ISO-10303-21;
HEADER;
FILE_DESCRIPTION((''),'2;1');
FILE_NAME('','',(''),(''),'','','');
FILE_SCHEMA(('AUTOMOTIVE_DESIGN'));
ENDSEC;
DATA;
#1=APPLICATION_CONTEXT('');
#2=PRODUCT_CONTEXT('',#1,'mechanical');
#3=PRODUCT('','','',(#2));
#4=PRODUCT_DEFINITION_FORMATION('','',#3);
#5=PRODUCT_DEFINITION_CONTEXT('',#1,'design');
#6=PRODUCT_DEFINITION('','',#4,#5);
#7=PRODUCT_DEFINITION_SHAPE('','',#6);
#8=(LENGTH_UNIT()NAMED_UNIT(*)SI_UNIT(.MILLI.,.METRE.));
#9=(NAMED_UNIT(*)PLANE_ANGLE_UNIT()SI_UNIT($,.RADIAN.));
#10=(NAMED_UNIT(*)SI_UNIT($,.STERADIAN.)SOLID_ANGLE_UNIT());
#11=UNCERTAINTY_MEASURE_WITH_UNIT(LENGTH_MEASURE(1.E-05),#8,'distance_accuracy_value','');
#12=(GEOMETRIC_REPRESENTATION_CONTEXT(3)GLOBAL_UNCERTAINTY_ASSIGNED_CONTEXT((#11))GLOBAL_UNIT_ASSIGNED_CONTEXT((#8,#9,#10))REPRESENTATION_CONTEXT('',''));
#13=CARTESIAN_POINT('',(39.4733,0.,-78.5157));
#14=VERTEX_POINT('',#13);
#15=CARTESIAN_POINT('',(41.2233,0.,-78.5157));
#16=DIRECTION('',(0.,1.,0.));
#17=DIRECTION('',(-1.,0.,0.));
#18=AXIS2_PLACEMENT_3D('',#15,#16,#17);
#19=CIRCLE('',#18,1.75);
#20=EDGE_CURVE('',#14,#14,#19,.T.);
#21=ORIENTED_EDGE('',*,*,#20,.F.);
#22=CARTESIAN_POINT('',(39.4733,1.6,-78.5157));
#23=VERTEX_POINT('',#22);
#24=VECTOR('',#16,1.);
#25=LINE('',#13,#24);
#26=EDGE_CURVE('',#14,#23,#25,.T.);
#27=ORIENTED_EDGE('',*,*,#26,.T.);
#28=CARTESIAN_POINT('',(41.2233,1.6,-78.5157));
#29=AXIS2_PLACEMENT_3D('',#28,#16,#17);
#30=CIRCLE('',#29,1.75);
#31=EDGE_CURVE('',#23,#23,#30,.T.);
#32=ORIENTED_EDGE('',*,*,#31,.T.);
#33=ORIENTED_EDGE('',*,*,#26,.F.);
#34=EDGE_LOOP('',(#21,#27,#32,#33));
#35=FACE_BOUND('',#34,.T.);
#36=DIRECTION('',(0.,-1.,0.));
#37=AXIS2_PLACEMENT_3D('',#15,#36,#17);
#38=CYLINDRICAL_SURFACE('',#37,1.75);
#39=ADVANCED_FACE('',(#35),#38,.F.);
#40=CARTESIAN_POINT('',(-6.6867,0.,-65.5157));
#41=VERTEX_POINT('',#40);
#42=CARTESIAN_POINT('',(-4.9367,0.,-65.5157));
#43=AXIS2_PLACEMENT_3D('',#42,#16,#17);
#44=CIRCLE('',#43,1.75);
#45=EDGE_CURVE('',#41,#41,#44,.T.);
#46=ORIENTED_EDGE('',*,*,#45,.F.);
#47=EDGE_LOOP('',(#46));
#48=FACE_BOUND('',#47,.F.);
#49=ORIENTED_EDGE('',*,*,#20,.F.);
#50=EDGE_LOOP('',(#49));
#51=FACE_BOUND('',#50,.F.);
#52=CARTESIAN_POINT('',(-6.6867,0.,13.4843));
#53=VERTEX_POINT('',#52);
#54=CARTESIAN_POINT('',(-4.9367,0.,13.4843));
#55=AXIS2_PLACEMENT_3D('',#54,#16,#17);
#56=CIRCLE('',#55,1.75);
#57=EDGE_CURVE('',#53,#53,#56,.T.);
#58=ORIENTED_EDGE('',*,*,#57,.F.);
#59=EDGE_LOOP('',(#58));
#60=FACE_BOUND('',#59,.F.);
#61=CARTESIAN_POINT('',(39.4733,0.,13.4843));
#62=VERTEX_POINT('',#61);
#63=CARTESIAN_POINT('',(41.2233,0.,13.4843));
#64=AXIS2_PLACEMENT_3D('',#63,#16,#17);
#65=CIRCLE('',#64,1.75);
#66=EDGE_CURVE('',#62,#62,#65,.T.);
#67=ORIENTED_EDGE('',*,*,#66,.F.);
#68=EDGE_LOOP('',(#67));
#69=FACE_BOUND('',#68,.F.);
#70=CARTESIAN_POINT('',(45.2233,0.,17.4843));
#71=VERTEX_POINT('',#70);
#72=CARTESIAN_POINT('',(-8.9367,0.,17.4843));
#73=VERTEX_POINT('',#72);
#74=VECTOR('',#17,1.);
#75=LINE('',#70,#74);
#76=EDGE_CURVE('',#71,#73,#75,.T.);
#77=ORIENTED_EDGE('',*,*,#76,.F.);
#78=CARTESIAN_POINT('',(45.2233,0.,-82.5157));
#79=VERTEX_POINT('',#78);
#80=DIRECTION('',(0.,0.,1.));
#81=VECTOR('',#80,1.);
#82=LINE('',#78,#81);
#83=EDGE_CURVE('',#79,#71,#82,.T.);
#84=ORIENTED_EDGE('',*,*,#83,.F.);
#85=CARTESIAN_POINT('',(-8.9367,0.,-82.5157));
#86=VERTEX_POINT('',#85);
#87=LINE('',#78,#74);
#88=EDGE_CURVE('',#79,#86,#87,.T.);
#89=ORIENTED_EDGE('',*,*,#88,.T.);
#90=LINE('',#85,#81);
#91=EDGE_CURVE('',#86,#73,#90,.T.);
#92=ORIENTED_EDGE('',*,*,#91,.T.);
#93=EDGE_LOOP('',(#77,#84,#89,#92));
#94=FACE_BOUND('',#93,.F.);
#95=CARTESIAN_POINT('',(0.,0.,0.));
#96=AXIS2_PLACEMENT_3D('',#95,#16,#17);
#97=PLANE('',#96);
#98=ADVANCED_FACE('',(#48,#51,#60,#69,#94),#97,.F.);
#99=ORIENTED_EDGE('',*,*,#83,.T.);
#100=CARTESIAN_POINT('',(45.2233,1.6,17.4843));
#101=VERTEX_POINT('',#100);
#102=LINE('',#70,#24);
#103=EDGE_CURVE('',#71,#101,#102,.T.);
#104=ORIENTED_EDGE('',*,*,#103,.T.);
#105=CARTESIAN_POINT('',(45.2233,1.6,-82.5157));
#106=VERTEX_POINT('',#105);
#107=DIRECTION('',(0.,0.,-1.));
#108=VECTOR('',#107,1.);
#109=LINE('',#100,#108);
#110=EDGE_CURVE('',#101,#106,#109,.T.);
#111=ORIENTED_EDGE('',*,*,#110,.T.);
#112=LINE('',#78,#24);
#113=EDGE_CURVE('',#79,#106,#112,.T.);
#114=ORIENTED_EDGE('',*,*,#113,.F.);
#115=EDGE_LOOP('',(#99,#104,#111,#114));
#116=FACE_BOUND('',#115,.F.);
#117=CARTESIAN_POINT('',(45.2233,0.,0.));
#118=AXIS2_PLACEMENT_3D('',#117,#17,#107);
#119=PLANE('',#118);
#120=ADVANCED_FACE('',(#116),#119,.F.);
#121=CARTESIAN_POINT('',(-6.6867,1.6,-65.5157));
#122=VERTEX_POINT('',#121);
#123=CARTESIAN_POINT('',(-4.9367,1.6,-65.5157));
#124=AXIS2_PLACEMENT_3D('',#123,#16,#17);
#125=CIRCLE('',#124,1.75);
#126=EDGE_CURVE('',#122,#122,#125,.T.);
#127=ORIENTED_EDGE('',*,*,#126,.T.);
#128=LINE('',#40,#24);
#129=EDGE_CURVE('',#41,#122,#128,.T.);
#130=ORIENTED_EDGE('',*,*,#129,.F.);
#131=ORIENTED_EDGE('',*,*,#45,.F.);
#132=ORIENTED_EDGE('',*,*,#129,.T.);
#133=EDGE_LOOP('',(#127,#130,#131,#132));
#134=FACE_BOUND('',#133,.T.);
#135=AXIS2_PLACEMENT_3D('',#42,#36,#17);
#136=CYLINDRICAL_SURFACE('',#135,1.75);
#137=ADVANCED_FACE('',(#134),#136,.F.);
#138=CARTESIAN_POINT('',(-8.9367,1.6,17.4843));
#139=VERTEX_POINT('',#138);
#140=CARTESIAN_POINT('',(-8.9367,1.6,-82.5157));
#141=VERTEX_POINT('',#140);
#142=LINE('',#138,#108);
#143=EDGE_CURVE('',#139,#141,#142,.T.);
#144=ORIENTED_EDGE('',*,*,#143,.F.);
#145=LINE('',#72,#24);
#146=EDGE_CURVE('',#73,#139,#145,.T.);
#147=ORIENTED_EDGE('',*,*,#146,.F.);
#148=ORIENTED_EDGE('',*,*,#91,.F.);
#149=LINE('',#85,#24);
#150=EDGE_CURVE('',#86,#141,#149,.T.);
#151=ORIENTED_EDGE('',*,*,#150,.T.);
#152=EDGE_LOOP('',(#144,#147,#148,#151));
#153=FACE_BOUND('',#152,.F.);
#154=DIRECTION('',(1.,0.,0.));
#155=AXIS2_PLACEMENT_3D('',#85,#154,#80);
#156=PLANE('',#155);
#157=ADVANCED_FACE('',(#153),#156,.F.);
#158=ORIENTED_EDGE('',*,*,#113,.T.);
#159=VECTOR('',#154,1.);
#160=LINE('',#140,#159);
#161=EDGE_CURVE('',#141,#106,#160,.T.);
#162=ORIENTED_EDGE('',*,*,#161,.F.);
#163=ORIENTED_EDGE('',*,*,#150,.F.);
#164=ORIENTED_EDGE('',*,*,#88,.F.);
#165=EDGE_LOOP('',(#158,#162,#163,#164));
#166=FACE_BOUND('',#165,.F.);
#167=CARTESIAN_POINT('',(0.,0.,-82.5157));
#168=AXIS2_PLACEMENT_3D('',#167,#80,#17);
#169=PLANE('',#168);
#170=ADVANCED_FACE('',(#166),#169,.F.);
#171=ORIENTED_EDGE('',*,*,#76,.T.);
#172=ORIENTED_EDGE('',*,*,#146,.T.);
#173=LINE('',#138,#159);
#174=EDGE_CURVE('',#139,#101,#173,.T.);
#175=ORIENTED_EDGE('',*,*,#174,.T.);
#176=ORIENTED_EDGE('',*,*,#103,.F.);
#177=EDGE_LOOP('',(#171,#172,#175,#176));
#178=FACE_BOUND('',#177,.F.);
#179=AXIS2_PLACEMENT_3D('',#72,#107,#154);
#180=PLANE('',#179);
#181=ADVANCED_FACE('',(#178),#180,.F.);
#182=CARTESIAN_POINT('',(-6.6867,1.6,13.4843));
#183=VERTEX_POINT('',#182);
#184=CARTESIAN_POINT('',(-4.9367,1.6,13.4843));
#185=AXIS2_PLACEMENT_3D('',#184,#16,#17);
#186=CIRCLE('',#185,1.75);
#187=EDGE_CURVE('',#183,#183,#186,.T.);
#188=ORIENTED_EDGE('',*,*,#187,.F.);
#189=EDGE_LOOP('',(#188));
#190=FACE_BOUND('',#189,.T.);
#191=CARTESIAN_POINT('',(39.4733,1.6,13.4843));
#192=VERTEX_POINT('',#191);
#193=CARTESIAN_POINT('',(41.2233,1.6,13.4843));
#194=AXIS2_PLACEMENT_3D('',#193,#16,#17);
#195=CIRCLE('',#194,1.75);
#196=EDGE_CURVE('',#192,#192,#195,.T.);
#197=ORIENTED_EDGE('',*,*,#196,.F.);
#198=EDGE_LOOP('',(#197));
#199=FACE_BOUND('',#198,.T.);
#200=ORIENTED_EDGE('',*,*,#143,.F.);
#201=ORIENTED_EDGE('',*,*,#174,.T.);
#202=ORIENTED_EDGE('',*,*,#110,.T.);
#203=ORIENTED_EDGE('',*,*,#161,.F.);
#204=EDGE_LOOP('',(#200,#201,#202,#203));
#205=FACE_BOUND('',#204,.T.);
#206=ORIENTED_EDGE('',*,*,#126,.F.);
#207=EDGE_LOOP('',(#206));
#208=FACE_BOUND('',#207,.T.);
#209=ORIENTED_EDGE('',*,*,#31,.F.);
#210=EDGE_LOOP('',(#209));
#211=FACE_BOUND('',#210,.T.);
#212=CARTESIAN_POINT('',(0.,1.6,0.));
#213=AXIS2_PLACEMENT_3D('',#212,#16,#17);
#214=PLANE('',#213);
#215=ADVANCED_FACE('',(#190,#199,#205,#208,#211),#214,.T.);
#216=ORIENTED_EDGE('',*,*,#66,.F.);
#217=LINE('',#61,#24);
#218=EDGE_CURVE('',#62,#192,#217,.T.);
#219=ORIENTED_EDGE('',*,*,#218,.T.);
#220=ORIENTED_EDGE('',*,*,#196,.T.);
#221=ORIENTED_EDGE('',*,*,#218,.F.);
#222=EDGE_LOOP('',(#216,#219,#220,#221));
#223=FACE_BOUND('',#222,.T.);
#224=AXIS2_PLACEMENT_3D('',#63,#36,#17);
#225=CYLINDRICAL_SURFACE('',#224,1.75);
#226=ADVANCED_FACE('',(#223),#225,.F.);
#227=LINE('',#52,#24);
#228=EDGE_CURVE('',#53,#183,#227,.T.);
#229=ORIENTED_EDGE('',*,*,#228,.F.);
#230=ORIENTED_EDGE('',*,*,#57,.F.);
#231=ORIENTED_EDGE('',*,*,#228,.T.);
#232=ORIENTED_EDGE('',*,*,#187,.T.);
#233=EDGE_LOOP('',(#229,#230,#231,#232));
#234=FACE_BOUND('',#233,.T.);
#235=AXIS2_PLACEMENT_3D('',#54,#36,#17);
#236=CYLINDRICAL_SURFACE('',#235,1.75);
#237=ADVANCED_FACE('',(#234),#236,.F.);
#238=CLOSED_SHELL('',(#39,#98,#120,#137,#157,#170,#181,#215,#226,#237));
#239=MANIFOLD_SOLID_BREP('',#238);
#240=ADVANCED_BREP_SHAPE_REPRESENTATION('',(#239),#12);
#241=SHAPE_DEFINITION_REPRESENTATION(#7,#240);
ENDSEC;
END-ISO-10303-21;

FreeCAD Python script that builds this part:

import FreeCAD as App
import Part
import Sketcher

V = App.Vector
Q = App.Units.Quantity


def add_polygon(sketch, points):
    """Adds a closed chain of lines whose ends are joined by coincident constraints."""
    first, n = sketch.GeometryCount, len(points)
    for a, b in zip(points, points[1:] + points[:1]):
        sketch.addGeometry(Part.LineSegment(App.Vector(*a, 0), App.Vector(*b, 0)), False)
    for i in range(n):
        sketch.addConstraint(Sketcher.Constraint("Coincident", first + i, 2, first + (i + 1) % n, 1))

doc = App.newDocument("Part")
params = doc.addObject("Spreadsheet::Sheet", "Params")
for row, (alias, value) in enumerate([
    ("sketch1_height", "3.937 in"),
    ("pad1_length", "0.0629921 in"),
], start=1):
    params.set(f"A{row}", alias)
    params.set(f"B{row}", "=" + value)
    params.setAlias(f"B{row}", alias)

body = doc.addObject("PartDesign::Body", "Body")

# Sketch on XZ plane
sketch1 = body.newObject("Sketcher::SketchObject", "Sketch")
sketch1.AttachmentSupport = (doc.getObject("XZ_Plane"), [""])
sketch1.MapMode = "FlatFace"
add_polygon(sketch1, [(-8.9367, -82.5157), (-8.9367, 17.4843), (45.2233, 17.4843), (45.2233, -82.5157)])  # lines 0-3
sketch1.addGeometry(Part.Circle(V(-4.9367, -65.5157, 0), V(0, 0, 1), 1.75), False)  # 4
sketch1.addGeometry(Part.Circle(V(41.2233, -78.5157, 0), V(0, 0, 1), 1.75), False)  # 5
sketch1.addGeometry(Part.Circle(V(-4.9367, 13.4843, 0), V(0, 0, 1), 1.75), False)  # 6
sketch1.addGeometry(Part.Circle(V(41.2233, 13.4843, 0), V(0, 0, 1), 1.75), False)  # 7
sketch1.addConstraint(Sketcher.Constraint("Vertical", 0))
sketch1.addConstraint(Sketcher.Constraint("Horizontal", 1))
sketch1.addConstraint(Sketcher.Constraint("Vertical", 2))
sketch1.addConstraint(Sketcher.Constraint("Horizontal", 3))
sketch1.addConstraint(Sketcher.Constraint("Equal", 4, 5))
sketch1.addConstraint(Sketcher.Constraint("Equal", 5, 6))
sketch1.addConstraint(Sketcher.Constraint("Equal", 6, 7))
sketch1.addConstraint(Sketcher.Constraint("Horizontal", 6, 3, 7, 3))
sketch1.addConstraint(Sketcher.Constraint("Vertical", 4, 3, 6, 3))
sketch1.addConstraint(Sketcher.Constraint("Vertical", 5, 3, 7, 3))
sketch1.addConstraint(Sketcher.Constraint("Diameter", 4, Q("0.1378 in")))
sketch1.addConstraint(Sketcher.Constraint("DistanceY", 0, 1, 0, 2, Q("3.937 in")))
sketch1.addConstraint(Sketcher.Constraint("DistanceX", 4, 3, 5, 3, Q("46.16 mm")))
sketch1.addConstraint(Sketcher.Constraint("DistanceY", 4, 3, 6, 3, Q("79 mm")))
sketch1.addConstraint(Sketcher.Constraint("DistanceY", 5, 3, 6, 3, Q("92 mm")))
sketch1.addConstraint(Sketcher.Constraint("DistanceX", 0, 2, 6, 3, Q("4 mm")))
sketch1.addConstraint(Sketcher.Constraint("DistanceY", 6, 3, 0, 2, Q("4 mm")))
sketch1.addConstraint(Sketcher.Constraint("DistanceX", 7, 3, 1, 2, Q("4 mm")))
sketch1.addConstraint(Sketcher.Constraint("DistanceX", 4, 3, -1, 1, Q("4.9367 mm")))
sketch1.addConstraint(Sketcher.Constraint("DistanceY", 4, 3, -1, 1, Q("65.5157 mm")))
sketch1.setExpression("Constraints[15]", "Params.sketch1_height")
pad1 = body.newObject("PartDesign::Pad", "Pad")
pad1.Profile = sketch1
pad1.setExpression("Length", "Params.pad1_length")
pad1.Reversed = True

doc.recompute()
